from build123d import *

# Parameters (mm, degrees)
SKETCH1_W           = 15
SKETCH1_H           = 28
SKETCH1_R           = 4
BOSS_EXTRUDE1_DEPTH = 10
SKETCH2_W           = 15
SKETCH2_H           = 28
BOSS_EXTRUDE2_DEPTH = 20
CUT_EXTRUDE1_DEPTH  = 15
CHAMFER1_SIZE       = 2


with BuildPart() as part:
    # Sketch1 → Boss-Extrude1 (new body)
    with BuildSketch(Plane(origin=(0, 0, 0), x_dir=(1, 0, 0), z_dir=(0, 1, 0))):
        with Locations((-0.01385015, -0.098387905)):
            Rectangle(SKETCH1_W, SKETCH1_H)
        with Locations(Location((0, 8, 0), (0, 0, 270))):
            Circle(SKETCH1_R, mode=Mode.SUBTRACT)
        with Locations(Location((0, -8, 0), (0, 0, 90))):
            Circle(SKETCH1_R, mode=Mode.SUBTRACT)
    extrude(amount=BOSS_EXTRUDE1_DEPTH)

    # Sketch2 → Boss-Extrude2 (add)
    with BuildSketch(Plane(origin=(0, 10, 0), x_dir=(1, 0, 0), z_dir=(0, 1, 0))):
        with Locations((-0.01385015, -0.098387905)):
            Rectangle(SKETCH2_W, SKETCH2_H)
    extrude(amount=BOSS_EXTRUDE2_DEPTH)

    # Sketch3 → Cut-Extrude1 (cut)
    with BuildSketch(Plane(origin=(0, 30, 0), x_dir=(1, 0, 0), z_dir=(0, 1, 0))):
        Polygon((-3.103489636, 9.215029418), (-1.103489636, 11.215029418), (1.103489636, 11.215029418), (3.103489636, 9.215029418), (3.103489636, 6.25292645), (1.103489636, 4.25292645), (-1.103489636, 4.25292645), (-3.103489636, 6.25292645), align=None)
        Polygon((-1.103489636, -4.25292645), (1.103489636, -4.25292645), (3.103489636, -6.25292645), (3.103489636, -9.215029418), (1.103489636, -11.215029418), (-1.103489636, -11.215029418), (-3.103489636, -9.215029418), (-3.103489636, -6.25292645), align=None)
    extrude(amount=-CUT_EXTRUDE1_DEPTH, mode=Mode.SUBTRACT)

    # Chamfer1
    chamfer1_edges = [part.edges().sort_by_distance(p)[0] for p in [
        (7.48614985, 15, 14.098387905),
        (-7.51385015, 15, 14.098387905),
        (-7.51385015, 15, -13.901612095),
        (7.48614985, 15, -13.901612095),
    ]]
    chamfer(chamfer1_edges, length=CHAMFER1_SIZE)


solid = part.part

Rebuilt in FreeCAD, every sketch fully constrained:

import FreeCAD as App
import Part
import Sketcher

V = App.Vector


def edges_at(feature, points):
    """Names of the edges that pass closest to the given points."""
    edges = feature.Shape.Edges
    near = lambda p: min(range(len(edges)), key=lambda i: edges[i].distToShape(Part.Vertex(*p))[0])
    return sorted({f"Edge{near(p) + 1}" for p in points})

doc = App.newDocument("Part")
params = doc.addObject("Spreadsheet::Sheet", "Params")
for row, (alias, value) in enumerate([
    ("sketch1_diameter", "8 mm"),
    ("sketch1_width", "15 mm"),
    ("sketch1_height", "28 mm"),
    ("pad1_length", "10 mm"),
    ("sketch2_width", "15 mm"),
    ("sketch2_height", "28 mm"),
    ("pad2_length", "20 mm"),
    ("pocket1_length", "15 mm"),
    ("chamfer_size", "2 mm"),
], start=1):
    params.set(f"A{row}", alias)
    params.set(f"B{row}", "=" + value)
    params.setAlias(f"B{row}", alias)

body = doc.addObject("PartDesign::Body", "Body")

sketch1 = doc.addObject("Sketcher::SketchObject", "Sketch")
body.addObject(sketch1)
sketch1.AttachmentSupport = (doc.XZ_Plane, [""])
sketch1.MapMode = "FlatFace"
sketch1.addGeometry(Part.LineSegment(V(-7.5, -13.9, 0), V(-7.5, 14.1, 0)), False)
sketch1.addGeometry(Part.LineSegment(V(-7.5, 14.1, 0), V(7.5, 14.1, 0)), False)
sketch1.addGeometry(Part.LineSegment(V(7.5, 14.1, 0), V(7.5, -13.9, 0)), False)
sketch1.addGeometry(Part.LineSegment(V(7.5, -13.9, 0), V(-7.5, -13.9, 0)), False)
sketch1.addGeometry(Part.Circle(V(0, 8, 0), V(0, 0, 1), 4), False)
sketch1.addGeometry(Part.Circle(V(0, -8, 0), V(0, 0, 1), 4), False)
sketch1.addConstraint(Sketcher.Constraint("Coincident", 0, 2, 1, 1))
sketch1.addConstraint(Sketcher.Constraint("Coincident", 1, 2, 2, 1))
sketch1.addConstraint(Sketcher.Constraint("Coincident", 2, 2, 3, 1))
sketch1.addConstraint(Sketcher.Constraint("Coincident", 3, 2, 0, 1))
sketch1.addConstraint(Sketcher.Constraint("Vertical", 0))
sketch1.addConstraint(Sketcher.Constraint("Horizontal", 1))
sketch1.addConstraint(Sketcher.Constraint("Vertical", 2))
sketch1.addConstraint(Sketcher.Constraint("Horizontal", 3))
sketch1.addConstraint(Sketcher.Constraint("Equal", 4, 5))
sketch1.addConstraint(Sketcher.Constraint("Symmetric", 4, 3, 5, 3, -1, 1))
sketch1.addConstraint(Sketcher.Constraint("PointOnObject", 4, 3, -2))
sketch1.addConstraint(Sketcher.Constraint("Diameter", 4, 8.0))
sketch1.addConstraint(Sketcher.Constraint("DistanceX", 1, 1, 1, 2, 15.0))
sketch1.addConstraint(Sketcher.Constraint("DistanceY", 0, 1, 0, 2, 28.0))
sketch1.addConstraint(Sketcher.Constraint("DistanceY", -1, 1, 4, 3, 8.0))
sketch1.addConstraint(Sketcher.Constraint("DistanceX", 0, 2, -1, 1, 7.51385))
sketch1.addConstraint(Sketcher.Constraint("DistanceY", -1, 1, 0, 2, 14.098388))
sketch1.setExpression("Constraints[11]", "Params.sketch1_diameter")
sketch1.setExpression("Constraints[12]", "Params.sketch1_width")
sketch1.setExpression("Constraints[13]", "Params.sketch1_height")
pad1 = doc.addObject("PartDesign::Pad", "Pad")
body.addObject(pad1)
pad1.Profile = sketch1
pad1.setExpression("Length", "Params.pad1_length")
pad1.Reversed = True

sketch2 = doc.addObject("Sketcher::SketchObject", "Sketch001")
body.addObject(sketch2)
sketch2.AttachmentSupport = (doc.XZ_Plane, [""])
sketch2.MapMode = "FlatFace"
sketch2.AttachmentOffset = App.Placement(V(0, 0, -10), App.Rotation())
sketch2.addGeometry(Part.LineSegment(V(-8, -14, 0), V(-8, 14, 0)), False)
sketch2.addGeometry(Part.LineSegment(V(-8, 14, 0), V(7, 14, 0)), False)
sketch2.addGeometry(Part.LineSegment(V(7, 14, 0), V(7, -14, 0)), False)
sketch2.addGeometry(Part.LineSegment(V(7, -14, 0), V(-8, -14, 0)), False)
sketch2.addConstraint(Sketcher.Constraint("Coincident", 0, 2, 1, 1))
sketch2.addConstraint(Sketcher.Constraint("Coincident", 1, 2, 2, 1))
sketch2.addConstraint(Sketcher.Constraint("Coincident", 2, 2, 3, 1))
sketch2.addConstraint(Sketcher.Constraint("Coincident", 3, 2, 0, 1))
sketch2.addConstraint(Sketcher.Constraint("Vertical", 0))
sketch2.addConstraint(Sketcher.Constraint("Horizontal", 1))
sketch2.addConstraint(Sketcher.Constraint("Vertical", 2))
sketch2.addConstraint(Sketcher.Constraint("Horizontal", 3))
sketch2.addConstraint(Sketcher.Constraint("DistanceX", 1, 1, 1, 2, 15.0))
sketch2.addConstraint(Sketcher.Constraint("DistanceY", 0, 1, 0, 2, 28.0))
sketch2.addConstraint(Sketcher.Constraint("DistanceX", 0, 2, -1, 1, 7.51385))
sketch2.addConstraint(Sketcher.Constraint("DistanceY", -1, 1, 0, 2, 14.098388))
sketch2.setExpression("Constraints[8]", "Params.sketch2_width")
sketch2.setExpression("Constraints[9]", "Params.sketch2_height")
pad2 = doc.addObject("PartDesign::Pad", "Pad001")
body.addObject(pad2)
pad2.Profile = sketch2
pad2.setExpression("Length", "Params.pad2_length")
pad2.Reversed = True

sketch3 = doc.addObject("Sketcher::SketchObject", "Sketch002")
body.addObject(sketch3)
sketch3.AttachmentSupport = (doc.XZ_Plane, [""])
sketch3.MapMode = "FlatFace"
sketch3.AttachmentOffset = App.Placement(V(0, 0, -30), App.Rotation())
sketch3.addGeometry(Part.LineSegment(V(-1.1, -11.2, 0), V(-3.1, -9.2, 0)), False)
sketch3.addGeometry(Part.LineSegment(V(-3.1, -9.2, 0), V(-3.1, -6.3, 0)), False)
sketch3.addGeometry(Part.LineSegment(V(-3.1, -6.3, 0), V(-1.1, -4.3, 0)), False)
sketch3.addGeometry(Part.LineSegment(V(-1.1, -4.3, 0), V(1.1, -4.3, 0)), False)
sketch3.addGeometry(Part.LineSegment(V(1.1, -4.3, 0), V(3.1, -6.3, 0)), False)
sketch3.addGeometry(Part.LineSegment(V(3.1, -6.3, 0), V(3.1, -9.2, 0)), False)
sketch3.addGeometry(Part.LineSegment(V(3.1, -9.2, 0), V(1.1, -11.2, 0)), False)
sketch3.addGeometry(Part.LineSegment(V(1.1, -11.2, 0), V(-1.1, -11.2, 0)), False)
sketch3.addGeometry(Part.LineSegment(V(1.1, 4.3, 0), V(-1.1, 4.3, 0)), False)
sketch3.addGeometry(Part.LineSegment(V(-1.1, 4.3, 0), V(-3.1, 6.3, 0)), False)
sketch3.addGeometry(Part.LineSegment(V(-3.1, 6.3, 0), V(-3.1, 9.2, 0)), False)
sketch3.addGeometry(Part.LineSegment(V(-3.1, 9.2, 0), V(-1.1, 11.2, 0)), False)
sketch3.addGeometry(Part.LineSegment(V(-1.1, 11.2, 0), V(1.1, 11.2, 0)), False)
sketch3.addGeometry(Part.LineSegment(V(1.1, 11.2, 0), V(3.1, 9.2, 0)), False)
sketch3.addGeometry(Part.LineSegment(V(3.1, 9.2, 0), V(3.1, 6.3, 0)), False)
sketch3.addGeometry(Part.LineSegment(V(3.1, 6.3, 0), V(1.1, 4.3, 0)), False)
sketch3.addConstraint(Sketcher.Constraint("Coincident", 0, 2, 1, 1))
sketch3.addConstraint(Sketcher.Constraint("Coincident", 1, 2, 2, 1))
sketch3.addConstraint(Sketcher.Constraint("Coincident", 2, 2, 3, 1))
sketch3.addConstraint(Sketcher.Constraint("Coincident", 3, 2, 4, 1))
sketch3.addConstraint(Sketcher.Constraint("Coincident", 4, 2, 5, 1))
sketch3.addConstraint(Sketcher.Constraint("Coincident", 5, 2, 6, 1))
sketch3.addConstraint(Sketcher.Constraint("Coincident", 6, 2, 7, 1))
sketch3.addConstraint(Sketcher.Constraint("Coincident", 7, 2, 0, 1))
sketch3.addConstraint(Sketcher.Constraint("Coincident", 8, 2, 9, 1))
sketch3.addConstraint(Sketcher.Constraint("Coincident", 9, 2, 10, 1))
sketch3.addConstraint(Sketcher.Constraint("Coincident", 10, 2, 11, 1))
sketch3.addConstraint(Sketcher.Constraint("Coincident", 11, 2, 12, 1))
sketch3.addConstraint(Sketcher.Constraint("Coincident", 12, 2, 13, 1))
sketch3.addConstraint(Sketcher.Constraint("Coincident", 13, 2, 14, 1))
sketch3.addConstraint(Sketcher.Constraint("Coincident", 14, 2, 15, 1))
sketch3.addConstraint(Sketcher.Constraint("Coincident", 15, 2, 8, 1))
sketch3.addConstraint(Sketcher.Constraint("Vertical", 1))
sketch3.addConstraint(Sketcher.Constraint("Horizontal", 3))
sketch3.addConstraint(Sketcher.Constraint("Vertical", 5))
sketch3.addConstraint(Sketcher.Constraint("Horizontal", 7))
sketch3.addConstraint(Sketcher.Constraint("Horizontal", 8))
sketch3.addConstraint(Sketcher.Constraint("Vertical", 10))
sketch3.addConstraint(Sketcher.Constraint("Horizontal", 12))
sketch3.addConstraint(Sketcher.Constraint("Vertical", 14))
sketch3.addConstraint(Sketcher.Constraint("Symmetric", 3, 2, 8, 2, -1, 1))
sketch3.addConstraint(Sketcher.Constraint("Symmetric", 4, 2, 9, 2, -1, 1))
sketch3.addConstraint(Sketcher.Constraint("Symmetric", 6, 2, 11, 2, -1, 1))
sketch3.addConstraint(Sketcher.Constraint("Symmetric", 0, 2, 13, 2, -1, 1))
sketch3.addConstraint(Sketcher.Constraint("Symmetric", 1, 2, 4, 2, -2))
sketch3.addConstraint(Sketcher.Constraint("Perpendicular", 0, 2))
sketch3.addConstraint(Sketcher.Constraint("Perpendicular", 2, 4))
sketch3.addConstraint(Sketcher.Constraint("Perpendicular", 4, 6))
sketch3.addConstraint(Sketcher.Constraint("Perpendicular", 9, 11))
sketch3.addConstraint(Sketcher.Constraint("Perpendicular", 11, 13))
sketch3.addConstraint(Sketcher.Constraint("Perpendicular", 13, 15))
sketch3.addConstraint(Sketcher.Constraint("Horizontal", 0, 2, 5, 2))
sketch3.addConstraint(Sketcher.Constraint("Horizontal", 9, 2, 14, 2))
sketch3.addConstraint(Sketcher.Constraint("Vertical", 3, 2, 6, 2))
sketch3.addConstraint(Sketcher.Constraint("Vertical", 2, 2, 7, 2))
sketch3.addConstraint(Sketcher.Constraint("DistanceX", 1, 2, 2, 2, 2.0))
sketch3.addConstraint(Sketcher.Constraint("DistanceX", 3, 1, 3, 2, 2.206979))
sketch3.addConstraint(Sketcher.Constraint("DistanceY", 1, 1, 1, 2, 2.962103))
sketch3.addConstraint(Sketcher.Constraint("DistanceY", 0, 2, -1, 1, 9.215029))
pocket1 = doc.addObject("PartDesign::Pocket", "Pocket")
body.addObject(pocket1)
pocket1.Profile = sketch3
pocket1.setExpression("Length", "Params.pocket1_length")
pocket1.Reversed = True
doc.recompute()

chamfer = doc.addObject("PartDesign::Chamfer", "Chamfer")
body.addObject(chamfer)
chamfer.Base = (pocket1, edges_at(pocket1, [
    (7.486, 15, 14.098),
    (-7.514, 15, 14.098),
    (-7.514, 15, -13.902),
    (7.486, 15, -13.902),
]))
chamfer.setExpression("Size", "Params.chamfer_size")

doc.recompute()
